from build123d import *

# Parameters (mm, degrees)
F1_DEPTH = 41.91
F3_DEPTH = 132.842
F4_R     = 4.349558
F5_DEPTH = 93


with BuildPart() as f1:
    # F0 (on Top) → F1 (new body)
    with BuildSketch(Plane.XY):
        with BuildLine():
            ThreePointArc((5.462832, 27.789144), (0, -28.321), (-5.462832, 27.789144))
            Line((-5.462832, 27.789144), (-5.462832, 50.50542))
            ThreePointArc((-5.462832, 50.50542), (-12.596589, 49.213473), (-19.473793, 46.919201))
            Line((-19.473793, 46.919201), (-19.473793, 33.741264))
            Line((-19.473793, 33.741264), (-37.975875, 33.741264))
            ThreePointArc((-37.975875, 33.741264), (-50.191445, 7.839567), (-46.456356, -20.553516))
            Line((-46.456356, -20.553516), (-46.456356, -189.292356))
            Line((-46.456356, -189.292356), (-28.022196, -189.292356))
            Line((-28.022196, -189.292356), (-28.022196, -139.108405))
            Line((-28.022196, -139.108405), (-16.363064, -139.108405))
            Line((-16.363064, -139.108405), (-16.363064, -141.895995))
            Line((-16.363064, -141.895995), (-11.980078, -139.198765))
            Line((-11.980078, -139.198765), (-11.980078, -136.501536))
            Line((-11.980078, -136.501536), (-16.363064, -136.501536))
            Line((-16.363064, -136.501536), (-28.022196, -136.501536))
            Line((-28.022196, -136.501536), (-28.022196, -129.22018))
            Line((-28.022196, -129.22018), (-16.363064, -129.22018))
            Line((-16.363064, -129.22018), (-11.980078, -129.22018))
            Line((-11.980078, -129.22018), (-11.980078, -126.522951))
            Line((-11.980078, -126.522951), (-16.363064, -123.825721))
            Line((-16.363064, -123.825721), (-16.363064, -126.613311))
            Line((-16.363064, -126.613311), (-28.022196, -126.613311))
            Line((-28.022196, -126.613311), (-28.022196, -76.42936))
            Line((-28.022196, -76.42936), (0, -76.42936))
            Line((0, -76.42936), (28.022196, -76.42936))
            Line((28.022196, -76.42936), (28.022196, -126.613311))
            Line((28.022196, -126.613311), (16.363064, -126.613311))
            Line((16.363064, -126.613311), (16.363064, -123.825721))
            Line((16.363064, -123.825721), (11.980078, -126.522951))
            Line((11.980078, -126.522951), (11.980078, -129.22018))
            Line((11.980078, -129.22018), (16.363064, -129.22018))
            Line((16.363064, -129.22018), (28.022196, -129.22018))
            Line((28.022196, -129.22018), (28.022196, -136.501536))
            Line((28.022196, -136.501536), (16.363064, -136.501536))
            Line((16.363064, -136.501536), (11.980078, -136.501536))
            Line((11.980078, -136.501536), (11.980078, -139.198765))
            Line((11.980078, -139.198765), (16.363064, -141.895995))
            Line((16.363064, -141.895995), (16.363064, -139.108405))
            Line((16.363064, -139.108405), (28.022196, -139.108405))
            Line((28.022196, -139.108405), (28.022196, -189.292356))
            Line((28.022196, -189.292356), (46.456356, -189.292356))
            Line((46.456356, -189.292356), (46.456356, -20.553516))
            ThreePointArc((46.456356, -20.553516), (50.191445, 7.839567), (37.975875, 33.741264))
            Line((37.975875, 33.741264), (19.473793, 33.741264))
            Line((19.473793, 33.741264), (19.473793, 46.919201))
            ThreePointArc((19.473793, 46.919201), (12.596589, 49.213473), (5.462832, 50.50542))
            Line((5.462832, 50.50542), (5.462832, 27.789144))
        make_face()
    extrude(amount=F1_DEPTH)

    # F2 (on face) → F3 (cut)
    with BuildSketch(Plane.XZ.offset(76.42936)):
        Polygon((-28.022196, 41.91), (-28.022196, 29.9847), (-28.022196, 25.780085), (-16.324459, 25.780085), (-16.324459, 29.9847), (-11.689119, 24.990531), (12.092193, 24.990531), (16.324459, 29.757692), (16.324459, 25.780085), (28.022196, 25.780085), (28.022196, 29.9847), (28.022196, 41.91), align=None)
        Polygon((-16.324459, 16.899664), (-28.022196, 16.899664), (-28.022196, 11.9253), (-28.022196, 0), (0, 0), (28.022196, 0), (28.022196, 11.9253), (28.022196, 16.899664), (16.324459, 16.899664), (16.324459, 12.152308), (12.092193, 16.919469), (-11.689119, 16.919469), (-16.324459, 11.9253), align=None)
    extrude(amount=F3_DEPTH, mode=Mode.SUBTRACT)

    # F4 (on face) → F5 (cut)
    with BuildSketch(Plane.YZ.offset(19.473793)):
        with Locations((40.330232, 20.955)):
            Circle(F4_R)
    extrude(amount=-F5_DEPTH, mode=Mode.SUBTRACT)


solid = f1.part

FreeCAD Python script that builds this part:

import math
import FreeCAD as App
import Part
import Sketcher
from FreeCAD import Vector
Q = App.Units.Quantity

doc = App.newDocument("Part")
params = doc.addObject("Spreadsheet::Sheet", "Params")
for row, (alias, value) in enumerate([
    ("sketch1_radius", "2.0000001 in"),
    ("sketch1_radius2", "1.115 in"),
    ("pad1_length", "1.65 in"),
    ("pocket1_length", "5.23 in"),
    ("pocket2_length", "93 mm"),
], start=1):
    params.set(f"A{row}", alias)
    params.set(f"B{row}", "=" + value)
    params.setAlias(f"B{row}", alias)

body = doc.addObject("PartDesign::Body", "Body")

sketch1 = body.newObject("Sketcher::SketchObject", "Sketch")
sketch1.AttachmentSupport = (doc.getObject("XY_Plane"), [""])
sketch1.MapMode = "FlatFace"
sketch1.addGeometry(Part.ArcOfCircle(Part.Circle(Vector(0, 0, 0), Vector(0, 0, 1), 28.321), math.radians(101.121478), math.radians(438.878522)), False)
sketch1.addGeometry(Part.LineSegment(Vector(-5.462832, 27.789144, 0), Vector(-5.462832, 50.50542, 0)), False)
sketch1.addGeometry(Part.ArcOfCircle(Part.Circle(Vector(0.000005, -0.000029, 0), Vector(0, 0, 1), 50.800029), math.radians(96.173302), math.radians(112.540865)), False)
sketch1.addGeometry(Part.LineSegment(Vector(-19.473793, 46.919201, 0), Vector(-19.473793, 33.741264, 0)), False)
sketch1.addGeometry(Part.LineSegment(Vector(-19.473793, 33.741264, 0), Vector(-37.975875, 33.741264, 0)), False)
sketch1.addGeometry(Part.ArcOfCircle(Part.Circle(Vector(0.000003, -0.000001, 0), Vector(0, 0, 1), 50.800002), math.radians(138.379165), math.radians(203.865859)), False)
sketch1.addGeometry(Part.LineSegment(Vector(-46.456356, -20.553516, 0), Vector(-46.456356, -189.292356, 0)), False)
sketch1.addGeometry(Part.LineSegment(Vector(-46.456356, -189.292356, 0), Vector(-28.022196, -189.292356, 0)), False)
sketch1.addGeometry(Part.LineSegment(Vector(-28.022196, -189.292356, 0), Vector(-28.022196, -139.108405, 0)), False)
sketch1.addGeometry(Part.LineSegment(Vector(-28.022196, -139.108405, 0), Vector(-16.363064, -139.108405, 0)), False)
sketch1.addGeometry(Part.LineSegment(Vector(-16.363064, -139.108405, 0), Vector(-16.363064, -141.895995, 0)), False)
sketch1.addGeometry(Part.LineSegment(Vector(-16.363064, -141.895995, 0), Vector(-11.980078, -139.198765, 0)), False)
sketch1.addGeometry(Part.LineSegment(Vector(-11.980078, -139.198765, 0), Vector(-11.980078, -136.501536, 0)), False)
sketch1.addGeometry(Part.LineSegment(Vector(-11.980078, -136.501536, 0), Vector(-28.022196, -136.501536, 0)), False)
sketch1.addGeometry(Part.LineSegment(Vector(-28.022196, -136.501536, 0), Vector(-28.022196, -129.22018, 0)), False)
sketch1.addGeometry(Part.LineSegment(Vector(-28.022196, -129.22018, 0), Vector(-11.980078, -129.22018, 0)), False)
sketch1.addGeometry(Part.LineSegment(Vector(-11.980078, -129.22018, 0), Vector(-11.980078, -126.522951, 0)), False)
sketch1.addGeometry(Part.LineSegment(Vector(-11.980078, -126.522951, 0), Vector(-16.363064, -123.825721, 0)), False)
sketch1.addGeometry(Part.LineSegment(Vector(-16.363064, -123.825721, 0), Vector(-16.363064, -126.613311, 0)), False)
sketch1.addGeometry(Part.LineSegment(Vector(-16.363064, -126.613311, 0), Vector(-28.022196, -126.613311, 0)), False)
sketch1.addGeometry(Part.LineSegment(Vector(-28.022196, -126.613311, 0), Vector(-28.022196, -76.42936, 0)), False)
sketch1.addGeometry(Part.LineSegment(Vector(-28.022196, -76.42936, 0), Vector(28.022196, -76.42936, 0)), False)
sketch1.addGeometry(Part.LineSegment(Vector(28.022196, -76.42936, 0), Vector(28.022196, -126.613311, 0)), False)
sketch1.addGeometry(Part.LineSegment(Vector(28.022196, -126.613311, 0), Vector(16.363064, -126.613311, 0)), False)
sketch1.addGeometry(Part.LineSegment(Vector(16.363064, -126.613311, 0), Vector(16.363064, -123.825721, 0)), False)
sketch1.addGeometry(Part.LineSegment(Vector(16.363064, -123.825721, 0), Vector(11.980078, -126.522951, 0)), False)
sketch1.addGeometry(Part.LineSegment(Vector(11.980078, -126.522951, 0), Vector(11.980078, -129.22018, 0)), False)
sketch1.addGeometry(Part.LineSegment(Vector(11.980078, -129.22018, 0), Vector(28.022196, -129.22018, 0)), False)
sketch1.addGeometry(Part.LineSegment(Vector(28.022196, -129.22018, 0), Vector(28.022196, -136.501536, 0)), False)
sketch1.addGeometry(Part.LineSegment(Vector(28.022196, -136.501536, 0), Vector(11.980078, -136.501536, 0)), False)
sketch1.addGeometry(Part.LineSegment(Vector(11.980078, -136.501536, 0), Vector(11.980078, -139.198765, 0)), False)
sketch1.addGeometry(Part.LineSegment(Vector(11.980078, -139.198765, 0), Vector(16.363064, -141.895995, 0)), False)
sketch1.addGeometry(Part.LineSegment(Vector(16.363064, -141.895995, 0), Vector(16.363064, -139.108405, 0)), False)
sketch1.addGeometry(Part.LineSegment(Vector(16.363064, -139.108405, 0), Vector(28.022196, -139.108405, 0)), False)
sketch1.addGeometry(Part.LineSegment(Vector(28.022196, -139.108405, 0), Vector(28.022196, -189.292356, 0)), False)
sketch1.addGeometry(Part.LineSegment(Vector(28.022196, -189.292356, 0), Vector(46.456356, -189.292356, 0)), False)
sketch1.addGeometry(Part.LineSegment(Vector(46.456356, -189.292356, 0), Vector(46.456356, -20.553516, 0)), False)
sketch1.addGeometry(Part.ArcOfCircle(Part.Circle(Vector(-0.000003, -0.000001, 0), Vector(0, 0, 1), 50.800002), math.radians(-23.865859), math.radians(41.620835)), False)
sketch1.addGeometry(Part.LineSegment(Vector(37.975875, 33.741264, 0), Vector(19.473793, 33.741264, 0)), False)
sketch1.addGeometry(Part.LineSegment(Vector(19.473793, 33.741264, 0), Vector(19.473793, 46.919201, 0)), False)
sketch1.addGeometry(Part.ArcOfCircle(Part.Circle(Vector(-0.000005, -0.000029, 0), Vector(0, 0, 1), 50.800029), math.radians(67.459135), math.radians(83.826698)), False)
sketch1.addGeometry(Part.LineSegment(Vector(5.462832, 50.50542, 0), Vector(5.462832, 27.789144, 0)), False)
sketch1.addConstraint(Sketcher.Constraint("Coincident", 0, 1, 1, 1))
sketch1.addConstraint(Sketcher.Constraint("Coincident", 1, 2, 2, 1))
sketch1.addConstraint(Sketcher.Constraint("Coincident", 2, 2, 3, 1))
sketch1.addConstraint(Sketcher.Constraint("Coincident", 3, 2, 4, 1))
sketch1.addConstraint(Sketcher.Constraint("Coincident", 4, 2, 5, 1))
sketch1.addConstraint(Sketcher.Constraint("Coincident", 5, 2, 6, 1))
sketch1.addConstraint(Sketcher.Constraint("Coincident", 6, 2, 7, 1))
sketch1.addConstraint(Sketcher.Constraint("Coincident", 7, 2, 8, 1))
sketch1.addConstraint(Sketcher.Constraint("Coincident", 8, 2, 9, 1))
sketch1.addConstraint(Sketcher.Constraint("Coincident", 9, 2, 10, 1))
sketch1.addConstraint(Sketcher.Constraint("Coincident", 10, 2, 11, 1))
sketch1.addConstraint(Sketcher.Constraint("Coincident", 11, 2, 12, 1))
sketch1.addConstraint(Sketcher.Constraint("Coincident", 12, 2, 13, 1))
sketch1.addConstraint(Sketcher.Constraint("Coincident", 13, 2, 14, 1))
sketch1.addConstraint(Sketcher.Constraint("Coincident", 14, 2, 15, 1))
sketch1.addConstraint(Sketcher.Constraint("Coincident", 15, 2, 16, 1))
sketch1.addConstraint(Sketcher.Constraint("Coincident", 16, 2, 17, 1))
sketch1.addConstraint(Sketcher.Constraint("Coincident", 17, 2, 18, 1))
sketch1.addConstraint(Sketcher.Constraint("Coincident", 18, 2, 19, 1))
sketch1.addConstraint(Sketcher.Constraint("Coincident", 19, 2, 20, 1))
sketch1.addConstraint(Sketcher.Constraint("Coincident", 20, 2, 21, 1))
sketch1.addConstraint(Sketcher.Constraint("Coincident", 21, 2, 22, 1))
sketch1.addConstraint(Sketcher.Constraint("Coincident", 22, 2, 23, 1))
sketch1.addConstraint(Sketcher.Constraint("Coincident", 23, 2, 24, 1))
sketch1.addConstraint(Sketcher.Constraint("Coincident", 24, 2, 25, 1))
sketch1.addConstraint(Sketcher.Constraint("Coincident", 25, 2, 26, 1))
sketch1.addConstraint(Sketcher.Constraint("Coincident", 26, 2, 27, 1))
sketch1.addConstraint(Sketcher.Constraint("Coincident", 27, 2, 28, 1))
sketch1.addConstraint(Sketcher.Constraint("Coincident", 28, 2, 29, 1))
sketch1.addConstraint(Sketcher.Constraint("Coincident", 29, 2, 30, 1))
sketch1.addConstraint(Sketcher.Constraint("Coincident", 30, 2, 31, 1))
sketch1.addConstraint(Sketcher.Constraint("Coincident", 31, 2, 32, 1))
sketch1.addConstraint(Sketcher.Constraint("Coincident", 32, 2, 33, 1))
sketch1.addConstraint(Sketcher.Constraint("Coincident", 33, 2, 34, 1))
sketch1.addConstraint(Sketcher.Constraint("Coincident", 34, 2, 35, 1))
sketch1.addConstraint(Sketcher.Constraint("Coincident", 35, 2, 36, 1))
sketch1.addConstraint(Sketcher.Constraint("Coincident", 36, 2, 37, 1))
sketch1.addConstraint(Sketcher.Constraint("Coincident", 37, 2, 38, 1))
sketch1.addConstraint(Sketcher.Constraint("Coincident", 38, 2, 39, 1))
sketch1.addConstraint(Sketcher.Constraint("Coincident", 39, 2, 40, 1))
sketch1.addConstraint(Sketcher.Constraint("Coincident", 40, 2, 41, 1))
sketch1.addConstraint(Sketcher.Constraint("Coincident", 41, 2, 0, 2))
sketch1.addConstraint(Sketcher.Constraint("Vertical", 1))
sketch1.addConstraint(Sketcher.Constraint("Vertical", 3))
sketch1.addConstraint(Sketcher.Constraint("Horizontal", 4))
sketch1.addConstraint(Sketcher.Constraint("Vertical", 6))
sketch1.addConstraint(Sketcher.Constraint("Horizontal", 7))
sketch1.addConstraint(Sketcher.Constraint("Vertical", 8))
sketch1.addConstraint(Sketcher.Constraint("Horizontal", 9))
sketch1.addConstraint(Sketcher.Constraint("Vertical", 10))
sketch1.addConstraint(Sketcher.Constraint("Vertical", 12))
sketch1.addConstraint(Sketcher.Constraint("Horizontal", 13))
sketch1.addConstraint(Sketcher.Constraint("Vertical", 14))
sketch1.addConstraint(Sketcher.Constraint("Horizontal", 15))
sketch1.addConstraint(Sketcher.Constraint("Vertical", 16))
sketch1.addConstraint(Sketcher.Constraint("Vertical", 18))
sketch1.addConstraint(Sketcher.Constraint("Horizontal", 19))
sketch1.addConstraint(Sketcher.Constraint("Vertical", 20))
sketch1.addConstraint(Sketcher.Constraint("Horizontal", 21))
sketch1.addConstraint(Sketcher.Constraint("Vertical", 22))
sketch1.addConstraint(Sketcher.Constraint("Horizontal", 23))
sketch1.addConstraint(Sketcher.Constraint("Vertical", 24))
sketch1.addConstraint(Sketcher.Constraint("Vertical", 26))
sketch1.addConstraint(Sketcher.Constraint("Horizontal", 27))
sketch1.addConstraint(Sketcher.Constraint("Vertical", 28))
sketch1.addConstraint(Sketcher.Constraint("Horizontal", 29))
sketch1.addConstraint(Sketcher.Constraint("Vertical", 30))
sketch1.addConstraint(Sketcher.Constraint("Vertical", 32))
sketch1.addConstraint(Sketcher.Constraint("Horizontal", 33))
sketch1.addConstraint(Sketcher.Constraint("Vertical", 34))
sketch1.addConstraint(Sketcher.Constraint("Horizontal", 35))
sketch1.addConstraint(Sketcher.Constraint("Vertical", 36))
sketch1.addConstraint(Sketcher.Constraint("Horizontal", 38))
sketch1.addConstraint(Sketcher.Constraint("Vertical", 39))
sketch1.addConstraint(Sketcher.Constraint("Vertical", 41))
sketch1.addConstraint(Sketcher.Constraint("Coincident", 0, 3, -1, 1))
sketch1.addConstraint(Sketcher.Constraint("Coincident", 5, 3, -1, 1))
sketch1.addConstraint(Sketcher.Constraint("Coincident", 37, 3, -1, 1))
sketch1.addConstraint(Sketcher.Constraint("Equal", 5, 37))
sketch1.addConstraint(Sketcher.Constraint("Equal", 2, 40))
sketch1.addConstraint(Sketcher.Constraint("Symmetric", 2, 3, 40, 3, -2))
sketch1.addConstraint(Sketcher.Constraint("Symmetric", 19, 2, 22, 2, -2))
sketch1.addConstraint(Sketcher.Constraint("Symmetric", 17, 2, 24, 2, -2))
sketch1.addConstraint(Sketcher.Constraint("Symmetric", 16, 2, 25, 2, -2))
sketch1.addConstraint(Sketcher.Constraint("Symmetric", 14, 2, 27, 2, -2))
sketch1.addConstraint(Sketcher.Constraint("Symmetric", 12, 2, 29, 2, -2))
sketch1.addConstraint(Sketcher.Constraint("Symmetric", 10, 2, 31, 2, -2))
sketch1.addConstraint(Sketcher.Constraint("Symmetric", 8, 2, 33, 2, -2))
sketch1.addConstraint(Sketcher.Constraint("Symmetric", 6, 2, 35, 2, -2))
sketch1.addConstraint(Sketcher.Constraint("Symmetric", 3, 2, 38, 2, -2))
sketch1.addConstraint(Sketcher.Constraint("Parallel", 11, 25))
sketch1.addConstraint(Sketcher.Constraint("Parallel", 17, 31))
sketch1.addConstraint(Sketcher.Constraint("Horizontal", 1, 2, 40, 2))
sketch1.addConstraint(Sketcher.Constraint("Vertical", 8, 2, 13, 2))
sketch1.addConstraint(Sketcher.Constraint("Vertical", 12, 2, 15, 2))
sketch1.addConstraint(Sketcher.Constraint("Vertical", 10, 2, 17, 2))
sketch1.addConstraint(Sketcher.Constraint("Vertical", 14, 2, 19, 2))
sketch1.addConstraint(Sketcher.Constraint("Equal", 12, 16))
sketch1.addConstraint(Sketcher.Constraint("Equal", 10, 18))
sketch1.addConstraint(Sketcher.Constraint("Equal", 8, 20))
sketch1.addConstraint(Sketcher.Constraint("Radius", 5, Q("2.0000001 in")))
sketch1.addConstraint(Sketcher.Constraint("Radius", 0, Q("1.115 in")))
sketch1.addConstraint(Sketcher.Constraint("Radius", 2, 50.800029))
sketch1.addConstraint(Sketcher.Constraint("DistanceY", 8, 2, 14, 2, Q("0.3893002 in")))
sketch1.addConstraint(Sketcher.Constraint("DistanceX", 7, 1, 7, 2, 18.43416))
sketch1.addConstraint(Sketcher.Constraint("DistanceX", 13, 2, 13, 1, 16.042118))
sketch1.addConstraint(Sketcher.Constraint("DistanceY", 6, 2, 6, 1, 168.73884))
sketch1.addConstraint(Sketcher.Constraint("DistanceY", 8, 1, 8, 2, 50.183951))
sketch1.addConstraint(Sketcher.Constraint("DistanceY", 10, 2, 10, 1, 2.78759))
sketch1.addConstraint(Sketcher.Constraint("DistanceY", 12, 1, 12, 2, 2.697229))
sketch1.addConstraint(Sketcher.Constraint("DistanceY", -1, 1, 2, 2, 46.919201))
sketch1.addConstraint(Sketcher.Constraint("DistanceX", 7, 2, 2, 3, 28.022201))
sketch1.addConstraint(Sketcher.Constraint("DistanceX", 4, 2, 4, 1, 18.502082))
sketch1.addConstraint(Sketcher.Constraint("DistanceX", 9, 1, 9, 2, 11.659132))
sketch1.addConstraint(Sketcher.Constraint("DistanceX", 21, 1, 21, 2, 56.044392))
sketch1.addConstraint(Sketcher.Constraint("DistanceY", 1, 1, 1, 2, 22.716276))
sketch1.addConstraint(Sketcher.Constraint("DistanceY", 3, 2, 3, 1, 13.177937))
sketch1.addConstraint(Sketcher.Constraint("DistanceY", 14, 1, 14, 2, 7.281356))
sketch1.setExpression("Constraints[100]", "Params.sketch1_radius")
sketch1.setExpression("Constraints[101]", "Params.sketch1_radius2")
pad1 = body.newObject("PartDesign::Pad", "Pad")
pad1.Profile = sketch1
pad1.setExpression("Length", "Params.pad1_length")

sketch2 = body.newObject("Sketcher::SketchObject", "Sketch001")
sketch2.AttachmentSupport = (doc.getObject("XZ_Plane"), [""])
sketch2.MapMode = "FlatFace"
sketch2.AttachmentOffset = App.Placement(Vector(0, 0, 76.42936), App.Rotation())
sketch2.addGeometry(Part.LineSegment(Vector(-28, 41.9, 0), Vector(-28, 25.8, 0)), False)
sketch2.addGeometry(Part.LineSegment(Vector(-28, 25.8, 0), Vector(-16.3, 25.8, 0)), False)
sketch2.addGeometry(Part.LineSegment(Vector(-16.3, 25.8, 0), Vector(-16.3, 30, 0)), False)
sketch2.addGeometry(Part.LineSegment(Vector(-16.3, 30, 0), Vector(-11.7, 25, 0)), False)
sketch2.addGeometry(Part.LineSegment(Vector(-11.7, 25, 0), Vector(12.1, 25, 0)), False)
sketch2.addGeometry(Part.LineSegment(Vector(12.1, 25, 0), Vector(16.3, 29.8, 0)), False)
sketch2.addGeometry(Part.LineSegment(Vector(16.3, 29.8, 0), Vector(16.3, 25.8, 0)), False)
sketch2.addGeometry(Part.LineSegment(Vector(16.3, 25.8, 0), Vector(28, 25.8, 0)), False)
sketch2.addGeometry(Part.LineSegment(Vector(28, 25.8, 0), Vector(28, 41.9, 0)), False)
sketch2.addGeometry(Part.LineSegment(Vector(28, 41.9, 0), Vector(-28, 41.9, 0)), False)
sketch2.addGeometry(Part.LineSegment(Vector(-16.3, 16.9, 0), Vector(-28, 16.9, 0)), False)
sketch2.addGeometry(Part.LineSegment(Vector(-28, 16.9, 0), Vector(-28, 0, 0)), False)
sketch2.addGeometry(Part.LineSegment(Vector(-28, 0, 0), Vector(28, 0, 0)), False)
sketch2.addGeometry(Part.LineSegment(Vector(28, 0, 0), Vector(28, 16.9, 0)), False)
sketch2.addGeometry(Part.LineSegment(Vector(28, 16.9, 0), Vector(16.3, 16.9, 0)), False)
sketch2.addGeometry(Part.LineSegment(Vector(16.3, 16.9, 0), Vector(16.3, 12.2, 0)), False)
sketch2.addGeometry(Part.LineSegment(Vector(16.3, 12.2, 0), Vector(12.1, 16.9, 0)), False)
sketch2.addGeometry(Part.LineSegment(Vector(12.1, 16.9, 0), Vector(-11.7, 16.9, 0)), False)
sketch2.addGeometry(Part.LineSegment(Vector(-11.7, 16.9, 0), Vector(-16.3, 11.9, 0)), False)
sketch2.addGeometry(Part.LineSegment(Vector(-16.3, 11.9, 0), Vector(-16.3, 16.9, 0)), False)
sketch2.addConstraint(Sketcher.Constraint("Coincident", 0, 2, 1, 1))
sketch2.addConstraint(Sketcher.Constraint("Coincident", 1, 2, 2, 1))
sketch2.addConstraint(Sketcher.Constraint("Coincident", 2, 2, 3, 1))
sketch2.addConstraint(Sketcher.Constraint("Coincident", 3, 2, 4, 1))
sketch2.addConstraint(Sketcher.Constraint("Coincident", 4, 2, 5, 1))
sketch2.addConstraint(Sketcher.Constraint("Coincident", 5, 2, 6, 1))
sketch2.addConstraint(Sketcher.Constraint("Coincident", 6, 2, 7, 1))
sketch2.addConstraint(Sketcher.Constraint("Coincident", 7, 2, 8, 1))
sketch2.addConstraint(Sketcher.Constraint("Coincident", 8, 2, 9, 1))
sketch2.addConstraint(Sketcher.Constraint("Coincident", 9, 2, 0, 1))
sketch2.addConstraint(Sketcher.Constraint("Coincident", 10, 2, 11, 1))
sketch2.addConstraint(Sketcher.Constraint("Coincident", 11, 2, 12, 1))
sketch2.addConstraint(Sketcher.Constraint("Coincident", 12, 2, 13, 1))
sketch2.addConstraint(Sketcher.Constraint("Coincident", 13, 2, 14, 1))
sketch2.addConstraint(Sketcher.Constraint("Coincident", 14, 2, 15, 1))
sketch2.addConstraint(Sketcher.Constraint("Coincident", 15, 2, 16, 1))
sketch2.addConstraint(Sketcher.Constraint("Coincident", 16, 2, 17, 1))
sketch2.addConstraint(Sketcher.Constraint("Coincident", 17, 2, 18, 1))
sketch2.addConstraint(Sketcher.Constraint("Coincident", 18, 2, 19, 1))
sketch2.addConstraint(Sketcher.Constraint("Coincident", 19, 2, 10, 1))
sketch2.addConstraint(Sketcher.Constraint("Vertical", 0))
sketch2.addConstraint(Sketcher.Constraint("Horizontal", 1))
sketch2.addConstraint(Sketcher.Constraint("Vertical", 2))
sketch2.addConstraint(Sketcher.Constraint("Horizontal", 4))
sketch2.addConstraint(Sketcher.Constraint("Vertical", 6))
sketch2.addConstraint(Sketcher.Constraint("Horizontal", 7))
sketch2.addConstraint(Sketcher.Constraint("Vertical", 8))
sketch2.addConstraint(Sketcher.Constraint("Horizontal", 9))
sketch2.addConstraint(Sketcher.Constraint("Horizontal", 10))
sketch2.addConstraint(Sketcher.Constraint("Vertical", 11))
sketch2.addConstraint(Sketcher.Constraint("Horizontal", 12))
sketch2.addConstraint(Sketcher.Constraint("Vertical", 13))
sketch2.addConstraint(Sketcher.Constraint("Horizontal", 14))
sketch2.addConstraint(Sketcher.Constraint("Vertical", 15))
sketch2.addConstraint(Sketcher.Constraint("Horizontal", 17))
sketch2.addConstraint(Sketcher.Constraint("Vertical", 19))
sketch2.addConstraint(Sketcher.Constraint("Symmetric", 11, 2, 12, 2, -1, 1))
sketch2.addConstraint(Sketcher.Constraint("Symmetric", 1, 2, 6, 2, -2))
sketch2.addConstraint(Sketcher.Constraint("Symmetric", 14, 2, 19, 2, -2))
sketch2.addConstraint(Sketcher.Constraint("Vertical", 9, 2, 10, 2))
sketch2.addConstraint(Sketcher.Constraint("Vertical", 8, 2, 12, 2))
sketch2.addConstraint(Sketcher.Constraint("Vertical", 6, 2, 14, 2))
sketch2.addConstraint(Sketcher.Constraint("Vertical", 4, 2, 16, 2))
sketch2.addConstraint(Sketcher.Constraint("Vertical", 3, 2, 17, 2))
sketch2.addConstraint(Sketcher.Constraint("Equal", 5, 16))
sketch2.addConstraint(Sketcher.Constraint("Equal", 3, 18))
sketch2.addConstraint(Sketcher.Constraint("DistanceY", -1, 1, 8, 2, Q("1.65 in")))
sketch2.addConstraint(Sketcher.Constraint("DistanceY", -1, 1, 2, 2, Q("1.1805 in")))
sketch2.addConstraint(Sketcher.Constraint("DistanceY", -1, 1, 18, 2, Q("0.4695 in")))
sketch2.addConstraint(Sketcher.Constraint("DistanceX", 4, 1, 4, 2, 23.781312))
sketch2.addConstraint(Sketcher.Constraint("DistanceX", 1, 1, 1, 2, 11.697737))
sketch2.addConstraint(Sketcher.Constraint("DistanceX", 9, 2, 9, 1, 56.044392))
sketch2.addConstraint(Sketcher.Constraint("DistanceY", 0, 2, 0, 1, 16.129915))
sketch2.addConstraint(Sketcher.Constraint("DistanceY", 6, 2, 6, 1, 3.977607))
sketch2.addConstraint(Sketcher.Constraint("DistanceY", 11, 2, 11, 1, 16.899664))
sketch2.addConstraint(Sketcher.Constraint("DistanceX", 3, 2, -1, 1, 11.689119))
sketch2.addConstraint(Sketcher.Constraint("DistanceY", -1, 1, 3, 2, 24.990531))
pocket1 = body.newObject("PartDesign::Pocket", "Pocket")
pocket1.Profile = sketch2
pocket1.setExpression("Length", "Params.pocket1_length")
pocket1.Reversed = True

sketch3 = body.newObject("Sketcher::SketchObject", "Sketch002")
sketch3.AttachmentSupport = (doc.getObject("YZ_Plane"), [""])
sketch3.MapMode = "FlatFace"
sketch3.AttachmentOffset = App.Placement(Vector(0, 0, 19.473793), App.Rotation())
sketch3.addGeometry(Part.Circle(Vector(40.3, 21, 0), Vector(0, 0, 1), 4.3), False)
sketch3.addConstraint(Sketcher.Constraint("DistanceY", -1, 1, 0, 3, Q("0.825 in")))
sketch3.addConstraint(Sketcher.Constraint("Diameter", 0, 8.699116))
sketch3.addConstraint(Sketcher.Constraint("DistanceX", -1, 1, 0, 3, 40.330232))
pocket2 = body.newObject("PartDesign::Pocket", "Pocket001")
pocket2.Profile = sketch3
pocket2.setExpression("Length", "Params.pocket2_length")

doc.recompute()
